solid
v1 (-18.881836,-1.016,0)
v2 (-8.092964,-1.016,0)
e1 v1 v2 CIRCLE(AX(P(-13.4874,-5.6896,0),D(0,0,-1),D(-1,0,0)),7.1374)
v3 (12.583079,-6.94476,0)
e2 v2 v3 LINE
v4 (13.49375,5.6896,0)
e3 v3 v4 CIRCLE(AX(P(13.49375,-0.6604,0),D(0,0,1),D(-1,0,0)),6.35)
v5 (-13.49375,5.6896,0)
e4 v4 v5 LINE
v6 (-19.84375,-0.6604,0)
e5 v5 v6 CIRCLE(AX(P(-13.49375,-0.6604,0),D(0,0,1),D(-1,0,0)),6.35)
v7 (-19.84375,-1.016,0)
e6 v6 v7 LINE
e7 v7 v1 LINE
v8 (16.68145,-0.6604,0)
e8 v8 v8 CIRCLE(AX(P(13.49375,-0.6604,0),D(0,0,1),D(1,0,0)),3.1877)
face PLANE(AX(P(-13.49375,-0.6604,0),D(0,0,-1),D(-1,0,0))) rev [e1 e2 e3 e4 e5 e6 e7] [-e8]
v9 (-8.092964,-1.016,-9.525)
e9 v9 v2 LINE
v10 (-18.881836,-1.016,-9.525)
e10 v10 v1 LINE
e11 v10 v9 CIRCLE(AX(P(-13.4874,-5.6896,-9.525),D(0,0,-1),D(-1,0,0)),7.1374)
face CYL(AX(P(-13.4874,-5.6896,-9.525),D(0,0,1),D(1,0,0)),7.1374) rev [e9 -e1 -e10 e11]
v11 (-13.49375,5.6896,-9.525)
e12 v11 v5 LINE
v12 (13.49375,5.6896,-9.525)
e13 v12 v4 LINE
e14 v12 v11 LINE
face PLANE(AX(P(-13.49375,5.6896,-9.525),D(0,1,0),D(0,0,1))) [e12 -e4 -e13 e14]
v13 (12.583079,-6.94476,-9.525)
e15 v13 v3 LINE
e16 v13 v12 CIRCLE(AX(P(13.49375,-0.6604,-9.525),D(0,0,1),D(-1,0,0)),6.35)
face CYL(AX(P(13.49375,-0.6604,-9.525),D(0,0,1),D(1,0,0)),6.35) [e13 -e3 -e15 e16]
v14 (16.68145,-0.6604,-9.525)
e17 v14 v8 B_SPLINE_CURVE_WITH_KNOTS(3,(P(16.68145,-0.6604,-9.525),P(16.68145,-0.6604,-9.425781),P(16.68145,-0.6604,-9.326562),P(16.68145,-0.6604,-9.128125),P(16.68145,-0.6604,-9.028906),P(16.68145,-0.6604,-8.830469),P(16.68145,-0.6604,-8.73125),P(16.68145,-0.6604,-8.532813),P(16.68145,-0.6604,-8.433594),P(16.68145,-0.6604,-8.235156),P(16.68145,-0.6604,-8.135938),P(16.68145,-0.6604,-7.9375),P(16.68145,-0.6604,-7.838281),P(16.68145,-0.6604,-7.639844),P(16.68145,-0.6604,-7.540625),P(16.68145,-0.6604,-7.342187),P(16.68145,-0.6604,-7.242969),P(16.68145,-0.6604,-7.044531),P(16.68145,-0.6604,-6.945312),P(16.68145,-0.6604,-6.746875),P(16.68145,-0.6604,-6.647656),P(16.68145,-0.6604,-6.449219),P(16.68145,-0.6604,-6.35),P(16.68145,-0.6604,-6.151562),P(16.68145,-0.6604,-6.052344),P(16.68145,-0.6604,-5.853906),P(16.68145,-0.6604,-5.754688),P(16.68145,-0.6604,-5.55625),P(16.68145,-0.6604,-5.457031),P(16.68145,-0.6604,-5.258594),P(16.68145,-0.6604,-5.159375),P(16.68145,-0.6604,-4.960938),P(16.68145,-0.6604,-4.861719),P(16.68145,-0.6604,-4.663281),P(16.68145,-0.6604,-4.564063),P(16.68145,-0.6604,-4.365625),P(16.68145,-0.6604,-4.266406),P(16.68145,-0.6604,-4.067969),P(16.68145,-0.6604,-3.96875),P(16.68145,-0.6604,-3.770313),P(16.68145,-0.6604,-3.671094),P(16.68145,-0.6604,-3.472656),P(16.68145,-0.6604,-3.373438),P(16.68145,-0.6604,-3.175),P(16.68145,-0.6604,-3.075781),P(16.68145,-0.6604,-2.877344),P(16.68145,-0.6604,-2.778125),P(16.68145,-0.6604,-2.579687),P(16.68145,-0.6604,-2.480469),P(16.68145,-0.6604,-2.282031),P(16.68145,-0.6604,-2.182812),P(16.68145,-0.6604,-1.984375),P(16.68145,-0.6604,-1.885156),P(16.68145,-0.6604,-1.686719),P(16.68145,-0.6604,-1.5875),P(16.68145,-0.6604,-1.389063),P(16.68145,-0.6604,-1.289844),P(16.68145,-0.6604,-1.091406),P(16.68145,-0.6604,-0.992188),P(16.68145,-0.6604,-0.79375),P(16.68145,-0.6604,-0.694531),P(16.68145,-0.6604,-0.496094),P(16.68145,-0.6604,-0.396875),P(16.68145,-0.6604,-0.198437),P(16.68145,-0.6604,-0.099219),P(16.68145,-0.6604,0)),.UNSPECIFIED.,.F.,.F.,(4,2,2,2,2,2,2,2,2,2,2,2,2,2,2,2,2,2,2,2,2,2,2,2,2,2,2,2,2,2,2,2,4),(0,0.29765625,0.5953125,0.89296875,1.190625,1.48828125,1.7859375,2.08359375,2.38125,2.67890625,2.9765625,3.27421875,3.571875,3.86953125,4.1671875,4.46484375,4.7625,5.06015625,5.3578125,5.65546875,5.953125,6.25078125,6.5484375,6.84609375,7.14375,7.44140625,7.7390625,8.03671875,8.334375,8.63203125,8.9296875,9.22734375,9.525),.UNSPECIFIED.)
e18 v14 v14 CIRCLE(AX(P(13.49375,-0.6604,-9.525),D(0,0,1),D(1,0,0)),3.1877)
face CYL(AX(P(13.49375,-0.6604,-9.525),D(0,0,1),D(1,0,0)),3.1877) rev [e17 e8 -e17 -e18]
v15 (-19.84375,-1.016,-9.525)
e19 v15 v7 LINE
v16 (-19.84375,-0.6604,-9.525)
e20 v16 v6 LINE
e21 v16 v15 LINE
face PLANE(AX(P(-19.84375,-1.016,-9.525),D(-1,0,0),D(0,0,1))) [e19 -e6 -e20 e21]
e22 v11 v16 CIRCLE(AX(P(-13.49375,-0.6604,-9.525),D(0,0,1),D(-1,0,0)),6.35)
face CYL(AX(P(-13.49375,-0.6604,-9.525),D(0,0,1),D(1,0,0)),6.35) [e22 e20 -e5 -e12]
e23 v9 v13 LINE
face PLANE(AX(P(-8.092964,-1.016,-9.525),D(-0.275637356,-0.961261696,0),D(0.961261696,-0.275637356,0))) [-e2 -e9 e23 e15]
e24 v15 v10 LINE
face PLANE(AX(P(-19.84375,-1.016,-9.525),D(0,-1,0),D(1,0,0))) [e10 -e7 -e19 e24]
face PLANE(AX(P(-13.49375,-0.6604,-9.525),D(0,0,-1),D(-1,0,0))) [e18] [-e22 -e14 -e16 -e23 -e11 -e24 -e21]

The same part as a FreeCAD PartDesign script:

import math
import FreeCAD as App
import Part
import Sketcher
from FreeCAD import Vector
Q = App.Units.Quantity

doc = App.newDocument("Part")
body = doc.addObject("PartDesign::Body", "Body")

# Sketch on XY plane
sketch1 = body.newObject("Sketcher::SketchObject", "Sketch")
sketch1.AttachmentSupport = (doc.getObject("XY_Plane"), [""])
sketch1.MapMode = "FlatFace"
sketch1.addGeometry([
    Part.LineSegment(Vector(-19.84, -1.02, 0), Vector(-18.88, -1.02, 0)),  # 0
    Part.ArcOfCircle(Part.Circle(Vector(-13.49, -5.69, 0), Vector(0, 0, 1), 7.14), math.radians(41), math.radians(139)),  # 1
    Part.LineSegment(Vector(-8.09, -1.02, 0), Vector(12.58, -6.94, 0)),  # 2
    Part.ArcOfCircle(Part.Circle(Vector(13.49, -0.66, 0), Vector(0, 0, 1), 6.35), math.radians(-98), math.radians(90)),  # 3
    Part.LineSegment(Vector(13.49, 5.69, 0), Vector(-13.49, 5.69, 0)),  # 4
    Part.ArcOfCircle(Part.Circle(Vector(-13.49, -0.66, 0), Vector(0, 0, 1), 6.35), math.radians(90), math.radians(180)),  # 5
    Part.LineSegment(Vector(-19.84, -0.66, 0), Vector(-19.84, -1.02, 0)),  # 6
    Part.Circle(Vector(13.49, -0.66, 0), Vector(0, 0, 1), 3.19),  # 7
], False)
sketch1.addConstraint([
    Sketcher.Constraint("Coincident", 0, 2, 1, 2),
    Sketcher.Constraint("Coincident", 1, 1, 2, 1),
    Sketcher.Constraint("Coincident", 2, 2, 3, 1),
    Sketcher.Constraint("Tangent", 3, 2, 4, 1),
    Sketcher.Constraint("Tangent", 4, 2, 5, 1),
    Sketcher.Constraint("Tangent", 5, 2, 6, 1),
    Sketcher.Constraint("Coincident", 6, 2, 0, 1),
    Sketcher.Constraint("Horizontal", 0),
    Sketcher.Constraint("Horizontal", 4),
    Sketcher.Constraint("Vertical", 6),
    Sketcher.Constraint("Coincident", 7, 3, 3, 3),
    Sketcher.Constraint("Equal", 3, 5),
    Sketcher.Constraint("Horizontal", 0, 2, 1, 1),
    Sketcher.Constraint("Radius", 3, Q("0.25 in")),
    Sketcher.Constraint("Diameter", 7, Q("0.251 in")),
    Sketcher.Constraint("Angle", 2, Q("-16 deg")),
    Sketcher.Constraint("Radius", 1, Q("0.281 in")),
    Sketcher.Constraint("DistanceX", 4, 2, 4, 1, Q("1.0625 in")),
    Sketcher.Constraint("DistanceY", 6, 2, 6, 1, Q("0.014 in")),
    Sketcher.Constraint("DistanceY", 0, 2, -1, 1, Q("0.04 in")),
    Sketcher.Constraint("DistanceX", 1, 3, -1, 1, Q("0.531 in")),
    Sketcher.Constraint("DistanceY", 1, 3, -1, 1, Q("0.224 in")),
    Sketcher.Constraint("DistanceX", -1, 1, 3, 3, Q("0.53125 in")),
])
pad1 = body.newObject("PartDesign::Pad", "Pad")
pad1.Profile = sketch1
pad1.Length = Q("0.375 in")
pad1.Reversed = True

doc.recompute()
